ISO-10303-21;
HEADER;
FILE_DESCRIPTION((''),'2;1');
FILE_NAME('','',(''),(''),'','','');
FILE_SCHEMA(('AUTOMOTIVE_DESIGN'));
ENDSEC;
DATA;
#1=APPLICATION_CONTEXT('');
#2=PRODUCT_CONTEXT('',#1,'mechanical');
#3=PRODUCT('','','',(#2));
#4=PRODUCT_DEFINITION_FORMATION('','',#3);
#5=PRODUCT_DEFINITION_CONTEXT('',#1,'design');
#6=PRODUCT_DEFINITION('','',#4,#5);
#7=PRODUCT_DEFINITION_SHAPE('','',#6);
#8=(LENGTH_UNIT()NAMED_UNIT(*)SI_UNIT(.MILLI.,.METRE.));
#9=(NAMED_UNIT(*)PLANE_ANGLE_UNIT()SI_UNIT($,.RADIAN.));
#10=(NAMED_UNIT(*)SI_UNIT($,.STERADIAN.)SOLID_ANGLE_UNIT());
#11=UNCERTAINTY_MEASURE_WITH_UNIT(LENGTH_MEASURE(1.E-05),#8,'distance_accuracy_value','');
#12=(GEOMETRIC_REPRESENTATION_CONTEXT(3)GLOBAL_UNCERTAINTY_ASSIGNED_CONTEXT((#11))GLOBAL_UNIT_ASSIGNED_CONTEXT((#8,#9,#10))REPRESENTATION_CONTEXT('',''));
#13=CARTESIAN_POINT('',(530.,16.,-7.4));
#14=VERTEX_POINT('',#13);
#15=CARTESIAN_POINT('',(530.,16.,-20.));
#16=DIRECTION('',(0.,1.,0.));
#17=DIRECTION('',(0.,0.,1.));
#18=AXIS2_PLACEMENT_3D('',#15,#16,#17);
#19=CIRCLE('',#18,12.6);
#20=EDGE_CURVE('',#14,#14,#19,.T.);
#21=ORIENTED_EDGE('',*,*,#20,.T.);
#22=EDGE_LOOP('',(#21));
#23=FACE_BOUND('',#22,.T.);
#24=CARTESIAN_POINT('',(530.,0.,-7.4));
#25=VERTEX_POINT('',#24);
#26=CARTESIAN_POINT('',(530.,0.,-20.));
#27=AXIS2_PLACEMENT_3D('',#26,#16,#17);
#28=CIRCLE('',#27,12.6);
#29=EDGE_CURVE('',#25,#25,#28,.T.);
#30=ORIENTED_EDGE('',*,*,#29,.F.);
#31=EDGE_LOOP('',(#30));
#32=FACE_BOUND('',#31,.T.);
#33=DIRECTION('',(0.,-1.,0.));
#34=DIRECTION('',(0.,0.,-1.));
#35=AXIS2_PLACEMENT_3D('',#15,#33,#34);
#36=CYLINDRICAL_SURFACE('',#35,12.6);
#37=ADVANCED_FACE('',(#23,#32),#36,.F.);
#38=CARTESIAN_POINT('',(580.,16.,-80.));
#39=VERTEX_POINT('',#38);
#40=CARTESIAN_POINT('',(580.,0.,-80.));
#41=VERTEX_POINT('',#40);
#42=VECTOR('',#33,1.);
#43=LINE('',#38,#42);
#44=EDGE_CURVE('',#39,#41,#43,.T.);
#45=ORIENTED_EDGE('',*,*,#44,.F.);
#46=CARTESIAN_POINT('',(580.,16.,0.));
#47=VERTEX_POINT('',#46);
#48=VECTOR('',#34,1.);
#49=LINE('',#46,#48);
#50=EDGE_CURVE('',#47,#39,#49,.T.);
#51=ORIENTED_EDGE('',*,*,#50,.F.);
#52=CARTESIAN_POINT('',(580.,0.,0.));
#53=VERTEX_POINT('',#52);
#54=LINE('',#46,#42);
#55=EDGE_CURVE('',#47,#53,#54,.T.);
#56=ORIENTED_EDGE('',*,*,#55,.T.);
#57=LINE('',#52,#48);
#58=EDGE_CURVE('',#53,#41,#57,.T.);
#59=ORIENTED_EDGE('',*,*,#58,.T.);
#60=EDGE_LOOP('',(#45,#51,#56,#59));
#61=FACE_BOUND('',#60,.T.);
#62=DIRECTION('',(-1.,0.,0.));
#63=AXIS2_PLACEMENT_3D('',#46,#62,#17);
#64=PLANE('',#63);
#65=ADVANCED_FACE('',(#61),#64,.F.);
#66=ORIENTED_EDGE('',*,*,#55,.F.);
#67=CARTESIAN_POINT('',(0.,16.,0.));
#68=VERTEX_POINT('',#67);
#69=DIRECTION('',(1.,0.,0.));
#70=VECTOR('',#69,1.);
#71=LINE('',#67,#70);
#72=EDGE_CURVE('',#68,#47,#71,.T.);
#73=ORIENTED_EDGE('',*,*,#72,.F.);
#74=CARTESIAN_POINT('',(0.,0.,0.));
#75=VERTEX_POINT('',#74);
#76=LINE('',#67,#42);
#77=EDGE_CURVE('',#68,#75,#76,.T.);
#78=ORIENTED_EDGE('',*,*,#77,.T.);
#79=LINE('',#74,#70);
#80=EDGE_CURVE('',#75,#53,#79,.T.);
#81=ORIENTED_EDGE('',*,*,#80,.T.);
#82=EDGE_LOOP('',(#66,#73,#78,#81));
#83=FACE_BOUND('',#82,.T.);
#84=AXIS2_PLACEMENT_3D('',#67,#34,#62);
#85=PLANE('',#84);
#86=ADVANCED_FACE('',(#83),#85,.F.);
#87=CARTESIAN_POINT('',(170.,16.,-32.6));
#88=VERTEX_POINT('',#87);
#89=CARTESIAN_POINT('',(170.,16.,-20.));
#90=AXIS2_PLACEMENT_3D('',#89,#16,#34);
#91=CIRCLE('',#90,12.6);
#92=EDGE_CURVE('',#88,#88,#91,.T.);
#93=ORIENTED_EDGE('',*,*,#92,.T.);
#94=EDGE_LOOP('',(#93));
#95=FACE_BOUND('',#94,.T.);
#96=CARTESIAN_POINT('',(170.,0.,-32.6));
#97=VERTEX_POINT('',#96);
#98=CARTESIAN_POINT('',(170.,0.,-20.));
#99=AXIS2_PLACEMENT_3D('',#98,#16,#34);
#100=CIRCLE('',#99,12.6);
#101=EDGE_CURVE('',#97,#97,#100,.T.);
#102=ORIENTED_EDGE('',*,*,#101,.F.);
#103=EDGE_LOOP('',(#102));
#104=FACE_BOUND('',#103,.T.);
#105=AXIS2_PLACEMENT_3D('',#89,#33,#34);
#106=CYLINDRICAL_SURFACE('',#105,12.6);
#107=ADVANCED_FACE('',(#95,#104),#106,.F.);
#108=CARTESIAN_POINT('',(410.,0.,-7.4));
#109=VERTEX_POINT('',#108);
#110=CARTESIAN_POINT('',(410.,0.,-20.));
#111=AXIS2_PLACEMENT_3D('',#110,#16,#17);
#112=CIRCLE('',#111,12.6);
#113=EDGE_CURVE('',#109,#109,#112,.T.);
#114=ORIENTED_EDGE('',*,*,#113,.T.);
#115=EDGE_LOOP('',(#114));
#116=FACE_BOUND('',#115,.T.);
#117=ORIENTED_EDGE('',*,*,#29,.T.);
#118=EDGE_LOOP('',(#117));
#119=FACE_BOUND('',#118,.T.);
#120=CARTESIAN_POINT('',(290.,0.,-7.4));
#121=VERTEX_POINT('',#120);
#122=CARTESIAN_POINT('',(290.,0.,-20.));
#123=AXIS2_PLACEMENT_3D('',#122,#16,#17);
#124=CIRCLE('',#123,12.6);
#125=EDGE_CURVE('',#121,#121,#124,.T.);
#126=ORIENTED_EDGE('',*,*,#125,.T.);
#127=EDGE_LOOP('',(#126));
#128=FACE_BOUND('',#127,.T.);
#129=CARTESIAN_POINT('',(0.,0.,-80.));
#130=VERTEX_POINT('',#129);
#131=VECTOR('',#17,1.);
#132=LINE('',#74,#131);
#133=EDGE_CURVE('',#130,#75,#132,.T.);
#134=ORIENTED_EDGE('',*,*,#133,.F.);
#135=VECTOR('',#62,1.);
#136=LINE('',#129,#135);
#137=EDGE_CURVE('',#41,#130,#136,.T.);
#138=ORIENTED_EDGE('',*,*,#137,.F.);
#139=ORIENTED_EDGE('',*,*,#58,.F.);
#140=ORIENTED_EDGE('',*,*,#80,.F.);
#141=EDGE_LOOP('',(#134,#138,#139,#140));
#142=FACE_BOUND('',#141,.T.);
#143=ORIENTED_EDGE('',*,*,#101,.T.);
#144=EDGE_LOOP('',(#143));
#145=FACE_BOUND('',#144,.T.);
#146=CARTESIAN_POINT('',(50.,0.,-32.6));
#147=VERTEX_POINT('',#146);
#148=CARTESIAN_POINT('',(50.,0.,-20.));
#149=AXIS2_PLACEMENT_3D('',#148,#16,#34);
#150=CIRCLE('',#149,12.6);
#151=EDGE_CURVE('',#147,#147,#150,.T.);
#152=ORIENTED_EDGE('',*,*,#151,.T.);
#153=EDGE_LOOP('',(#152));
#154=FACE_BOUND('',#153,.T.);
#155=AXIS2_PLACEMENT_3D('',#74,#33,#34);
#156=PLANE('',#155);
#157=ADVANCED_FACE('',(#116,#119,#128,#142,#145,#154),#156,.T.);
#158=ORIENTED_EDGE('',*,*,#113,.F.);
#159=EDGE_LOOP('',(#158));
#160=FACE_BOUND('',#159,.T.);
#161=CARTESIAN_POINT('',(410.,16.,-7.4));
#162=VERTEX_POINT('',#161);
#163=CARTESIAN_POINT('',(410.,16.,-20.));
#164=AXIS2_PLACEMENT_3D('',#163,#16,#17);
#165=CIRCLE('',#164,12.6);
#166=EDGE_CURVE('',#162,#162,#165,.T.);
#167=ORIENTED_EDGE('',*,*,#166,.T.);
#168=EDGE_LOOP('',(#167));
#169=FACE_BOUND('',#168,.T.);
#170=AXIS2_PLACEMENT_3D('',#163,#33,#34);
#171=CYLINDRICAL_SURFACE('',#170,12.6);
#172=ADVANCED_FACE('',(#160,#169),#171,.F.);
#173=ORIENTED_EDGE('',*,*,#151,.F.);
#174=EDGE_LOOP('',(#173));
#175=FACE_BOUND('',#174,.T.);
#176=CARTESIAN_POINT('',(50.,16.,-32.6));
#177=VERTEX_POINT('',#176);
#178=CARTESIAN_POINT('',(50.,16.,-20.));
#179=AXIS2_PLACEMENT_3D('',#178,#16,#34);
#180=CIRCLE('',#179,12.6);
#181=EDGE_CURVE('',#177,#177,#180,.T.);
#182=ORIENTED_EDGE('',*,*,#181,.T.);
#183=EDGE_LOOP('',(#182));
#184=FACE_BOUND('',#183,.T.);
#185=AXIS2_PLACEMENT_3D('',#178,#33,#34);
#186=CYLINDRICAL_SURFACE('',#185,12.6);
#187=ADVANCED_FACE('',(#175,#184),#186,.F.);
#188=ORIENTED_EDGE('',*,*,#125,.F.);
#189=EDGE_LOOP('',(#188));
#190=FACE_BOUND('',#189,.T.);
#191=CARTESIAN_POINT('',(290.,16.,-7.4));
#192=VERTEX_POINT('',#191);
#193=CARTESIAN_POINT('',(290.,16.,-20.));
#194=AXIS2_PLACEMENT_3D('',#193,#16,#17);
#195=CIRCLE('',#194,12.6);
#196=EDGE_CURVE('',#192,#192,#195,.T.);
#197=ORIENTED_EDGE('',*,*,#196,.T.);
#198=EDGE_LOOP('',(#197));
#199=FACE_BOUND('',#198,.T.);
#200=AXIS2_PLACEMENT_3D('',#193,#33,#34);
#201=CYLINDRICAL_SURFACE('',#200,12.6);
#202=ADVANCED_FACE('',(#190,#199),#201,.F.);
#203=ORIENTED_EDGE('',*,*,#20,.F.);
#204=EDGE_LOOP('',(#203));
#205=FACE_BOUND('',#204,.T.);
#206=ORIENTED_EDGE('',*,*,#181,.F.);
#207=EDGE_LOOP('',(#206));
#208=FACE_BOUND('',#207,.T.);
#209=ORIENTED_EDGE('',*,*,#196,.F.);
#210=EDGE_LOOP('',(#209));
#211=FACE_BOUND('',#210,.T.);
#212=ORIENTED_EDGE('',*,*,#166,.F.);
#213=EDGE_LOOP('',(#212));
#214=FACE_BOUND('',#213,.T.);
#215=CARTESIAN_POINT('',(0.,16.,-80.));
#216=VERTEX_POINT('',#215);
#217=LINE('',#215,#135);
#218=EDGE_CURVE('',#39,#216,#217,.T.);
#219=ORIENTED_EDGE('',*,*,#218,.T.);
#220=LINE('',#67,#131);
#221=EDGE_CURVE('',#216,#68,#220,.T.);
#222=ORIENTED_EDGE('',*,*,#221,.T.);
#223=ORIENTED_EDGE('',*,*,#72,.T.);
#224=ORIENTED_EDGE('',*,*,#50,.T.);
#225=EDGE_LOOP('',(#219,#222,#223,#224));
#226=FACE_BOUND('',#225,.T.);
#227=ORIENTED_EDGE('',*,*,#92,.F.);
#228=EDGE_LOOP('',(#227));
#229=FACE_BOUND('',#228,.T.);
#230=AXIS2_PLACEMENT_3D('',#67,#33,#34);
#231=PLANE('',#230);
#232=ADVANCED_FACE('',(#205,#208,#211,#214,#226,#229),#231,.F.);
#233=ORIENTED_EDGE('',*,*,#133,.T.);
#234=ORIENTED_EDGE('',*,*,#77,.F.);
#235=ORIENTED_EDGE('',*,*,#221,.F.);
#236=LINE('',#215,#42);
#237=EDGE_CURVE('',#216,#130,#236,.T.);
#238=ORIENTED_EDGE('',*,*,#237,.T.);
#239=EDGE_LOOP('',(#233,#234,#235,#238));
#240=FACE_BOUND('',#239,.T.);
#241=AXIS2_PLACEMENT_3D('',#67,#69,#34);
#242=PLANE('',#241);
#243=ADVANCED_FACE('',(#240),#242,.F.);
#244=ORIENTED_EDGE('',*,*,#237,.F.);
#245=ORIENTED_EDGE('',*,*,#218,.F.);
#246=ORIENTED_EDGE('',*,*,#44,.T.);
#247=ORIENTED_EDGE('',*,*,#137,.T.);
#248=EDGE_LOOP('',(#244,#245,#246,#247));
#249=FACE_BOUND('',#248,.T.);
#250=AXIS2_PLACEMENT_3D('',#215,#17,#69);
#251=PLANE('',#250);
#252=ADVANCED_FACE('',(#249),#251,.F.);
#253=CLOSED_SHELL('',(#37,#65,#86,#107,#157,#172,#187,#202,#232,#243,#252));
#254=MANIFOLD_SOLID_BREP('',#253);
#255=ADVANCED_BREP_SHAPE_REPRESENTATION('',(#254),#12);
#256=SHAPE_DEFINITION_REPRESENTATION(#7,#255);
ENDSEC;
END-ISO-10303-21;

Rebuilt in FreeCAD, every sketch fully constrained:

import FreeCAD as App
import Part
import Sketcher

V = App.Vector
Q = App.Units.Quantity

doc = App.newDocument("Part")
body = doc.addObject("PartDesign::Body", "Body")

# Sketch on XZ plane
sketch1 = body.newObject("Sketcher::SketchObject", "Sketch")
sketch1.AttachmentSupport = (doc.getObject("XZ_Plane"), [""])
sketch1.MapMode = "FlatFace"
sketch1.addGeometry([
    Part.LineSegment(V(0, -80, 0), V(0, 0, 0)),  # 0
    Part.LineSegment(V(0, 0, 0), V(580, 0, 0)),  # 1
    Part.LineSegment(V(580, 0, 0), V(580, -80, 0)),  # 2
    Part.LineSegment(V(580, -80, 0), V(0, -80, 0)),  # 3
    Part.Circle(V(50, -20, 0), V(0, 0, 1), 12.6),  # 4
    Part.Circle(V(170, -20, 0), V(0, 0, 1), 12.6),  # 5
    Part.Circle(V(290, -20, 0), V(0, 0, 1), 12.6),  # 6
    Part.Circle(V(410, -20, 0), V(0, 0, 1), 12.6),  # 7
    Part.Circle(V(530, -20, 0), V(0, 0, 1), 12.6),  # 8
], False)
sketch1.addConstraint([
    Sketcher.Constraint("Coincident", 0, 2, 1, 1),
    Sketcher.Constraint("Coincident", 1, 2, 2, 1),
    Sketcher.Constraint("Coincident", 2, 2, 3, 1),
    Sketcher.Constraint("Coincident", 3, 2, 0, 1),
    Sketcher.Constraint("Vertical", 0),
    Sketcher.Constraint("Horizontal", 1),
    Sketcher.Constraint("Vertical", 2),
    Sketcher.Constraint("Horizontal", 3),
    Sketcher.Constraint("Coincident", 0, 2, -1, 1),
    Sketcher.Constraint("Equal", 4, 5),
    Sketcher.Constraint("Equal", 5, 6),
    Sketcher.Constraint("Equal", 6, 7),
    Sketcher.Constraint("Equal", 7, 8),
    Sketcher.Constraint("Horizontal", 4, 3, 5, 3),
    Sketcher.Constraint("Horizontal", 5, 3, 6, 3),
    Sketcher.Constraint("Horizontal", 6, 3, 7, 3),
    Sketcher.Constraint("Horizontal", 7, 3, 8, 3),
    Sketcher.Constraint("Diameter", 4, Q("25.2 mm")),
    Sketcher.Constraint("DistanceX", 1, 1, 1, 2, Q("580 mm")),
    Sketcher.Constraint("DistanceY", 0, 1, 0, 2, Q("80 mm")),
    Sketcher.Constraint("DistanceX", -1, 1, 4, 3, Q("50 mm")),
    Sketcher.Constraint("DistanceY", 4, 3, -1, 1, Q("20 mm")),
    Sketcher.Constraint("DistanceX", -1, 1, 5, 3, Q("170 mm")),
    Sketcher.Constraint("DistanceX", -1, 1, 6, 3, Q("290 mm")),
    Sketcher.Constraint("DistanceX", -1, 1, 7, 3, Q("410 mm")),
    Sketcher.Constraint("DistanceX", -1, 1, 8, 3, Q("530 mm")),
])
pad1 = body.newObject("PartDesign::Pad", "Pad")
pad1.Profile = sketch1
pad1.Length = 16
pad1.Reversed = True

doc.recompute()
